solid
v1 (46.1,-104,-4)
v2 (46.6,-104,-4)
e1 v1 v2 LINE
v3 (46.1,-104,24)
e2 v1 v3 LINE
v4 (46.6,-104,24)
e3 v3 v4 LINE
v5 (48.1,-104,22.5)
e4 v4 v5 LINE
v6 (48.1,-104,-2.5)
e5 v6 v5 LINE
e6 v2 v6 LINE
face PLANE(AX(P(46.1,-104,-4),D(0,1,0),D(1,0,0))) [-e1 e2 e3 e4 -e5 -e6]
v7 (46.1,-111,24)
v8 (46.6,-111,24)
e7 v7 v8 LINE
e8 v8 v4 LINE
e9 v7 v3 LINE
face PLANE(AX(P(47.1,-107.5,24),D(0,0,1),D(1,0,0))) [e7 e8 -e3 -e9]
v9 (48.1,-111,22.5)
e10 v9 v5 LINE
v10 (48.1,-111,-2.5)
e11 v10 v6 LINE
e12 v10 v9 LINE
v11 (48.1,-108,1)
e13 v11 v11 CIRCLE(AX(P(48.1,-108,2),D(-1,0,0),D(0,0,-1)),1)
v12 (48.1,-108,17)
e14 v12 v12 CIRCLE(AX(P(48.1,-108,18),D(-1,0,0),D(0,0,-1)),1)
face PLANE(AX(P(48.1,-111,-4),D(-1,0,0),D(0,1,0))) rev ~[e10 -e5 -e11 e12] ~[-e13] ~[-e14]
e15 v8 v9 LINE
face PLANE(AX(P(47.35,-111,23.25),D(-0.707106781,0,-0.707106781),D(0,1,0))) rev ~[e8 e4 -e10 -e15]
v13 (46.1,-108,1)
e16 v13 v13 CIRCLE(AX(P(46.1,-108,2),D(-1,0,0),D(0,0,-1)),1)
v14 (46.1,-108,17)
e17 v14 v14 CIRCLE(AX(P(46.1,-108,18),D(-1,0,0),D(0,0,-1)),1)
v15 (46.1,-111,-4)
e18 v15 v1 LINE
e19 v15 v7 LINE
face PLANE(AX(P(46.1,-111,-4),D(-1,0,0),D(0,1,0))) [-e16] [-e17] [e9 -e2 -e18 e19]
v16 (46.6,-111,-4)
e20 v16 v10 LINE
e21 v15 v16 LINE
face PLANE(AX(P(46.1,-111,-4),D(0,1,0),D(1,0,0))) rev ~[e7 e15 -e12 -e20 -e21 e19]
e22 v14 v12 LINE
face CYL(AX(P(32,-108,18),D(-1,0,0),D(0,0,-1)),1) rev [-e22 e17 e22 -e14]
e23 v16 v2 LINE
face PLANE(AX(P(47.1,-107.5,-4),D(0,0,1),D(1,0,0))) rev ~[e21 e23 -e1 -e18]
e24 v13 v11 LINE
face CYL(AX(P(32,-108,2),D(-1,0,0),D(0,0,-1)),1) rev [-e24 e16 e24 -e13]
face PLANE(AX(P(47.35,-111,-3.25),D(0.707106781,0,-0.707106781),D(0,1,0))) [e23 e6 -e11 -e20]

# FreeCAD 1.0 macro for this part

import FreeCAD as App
import Part
import Sketcher
from FreeCAD import Vector


def edges_at(feature, points):
    """Names of the edges that pass closest to the given points."""
    edges = feature.Shape.Edges
    near = lambda p: min(range(len(edges)), key=lambda i: edges[i].distToShape(Part.Vertex(*p))[0])
    return sorted({f"Edge{near(p) + 1}" for p in points})

doc = App.newDocument("Part")
params = doc.addObject("Spreadsheet::Sheet", "Params")
for row, (alias, value) in enumerate([
    ("sketch1_diameter", "2 mm"),
    ("pad1_length", "20 mm"),
    ("sketch2_diameter", "2 mm"),
    ("pad2_length", "20 mm"),
    ("sketch3_width", "2 mm"),
    ("sketch3_height", "7 mm"),
    ("pad3_length", "28 mm"),
    ("chamfer_size", "1.5 mm"),
], start=1):
    params.set(f"A{row}", alias)
    params.set(f"B{row}", "=" + value)
    params.setAlias(f"B{row}", alias)

body = doc.addObject("PartDesign::Body", "Body")

# Sketch on YZ plane
sketch1 = body.newObject("Sketcher::SketchObject", "Sketch")
sketch1.AttachmentSupport = (doc.getObject("YZ_Plane"), [""])
sketch1.MapMode = "FlatFace"
sketch1.AttachmentOffset = App.Placement(Vector(0, 0, 32), App.Rotation())
sketch1.addGeometry(Part.Circle(Vector(-108, 18, 0), Vector(0, 0, 1), 1), False)
sketch1.addConstraint([
    Sketcher.Constraint("Diameter", 0, 2.0),
    Sketcher.Constraint("DistanceX", 0, 3, -1, 1, 108.0),
    Sketcher.Constraint("DistanceY", -1, 1, 0, 3, 18.0),
])
sketch1.setExpression("Constraints[0]", "Params.sketch1_diameter")
pad1 = body.newObject("PartDesign::Pad", "Pad")
pad1.Profile = sketch1
pad1.setExpression("Length", "Params.pad1_length")
body2 = doc.addObject("PartDesign::Body", "Body001")
body2.AllowCompound = True

# Sketch on YZ plane
sketch2 = body2.newObject("Sketcher::SketchObject", "Sketch001")
sketch2.AttachmentSupport = (doc.getObject("YZ_Plane001"), [""])
sketch2.MapMode = "FlatFace"
sketch2.AttachmentOffset = App.Placement(Vector(0, 0, 32), App.Rotation())
sketch2.addGeometry(Part.Circle(Vector(-108, 2, 0), Vector(0, 0, 1), 1), False)
sketch2.addConstraint([
    Sketcher.Constraint("Diameter", 0, 2.0),
    Sketcher.Constraint("DistanceX", 0, 3, -1, 1, 108.0),
    Sketcher.Constraint("DistanceY", -1, 1, 0, 3, 2.0),
])
sketch2.setExpression("Constraints[0]", "Params.sketch2_diameter")
pad2 = body2.newObject("PartDesign::Pad", "Pad001")
pad2.Profile = sketch2
pad2.setExpression("Length", "Params.pad2_length")
doc.recompute()

boolean = body2.newObject("PartDesign::Boolean", "Boolean")
boolean.Type = "Fuse"
boolean.addObjects([body])
body3 = doc.addObject("PartDesign::Body", "Body002")

# Sketch on XY plane
sketch3 = body3.newObject("Sketcher::SketchObject", "Sketch002")
sketch3.AttachmentSupport = (doc.getObject("XY_Plane002"), [""])
sketch3.MapMode = "FlatFace"
sketch3.AttachmentOffset = App.Placement(Vector(0, 0, -4), App.Rotation())
sketch3.addGeometry([
    Part.LineSegment(Vector(46.1, -104, 0), Vector(46.1, -111, 0)),
    Part.LineSegment(Vector(46.1, -111, 0), Vector(48.1, -111, 0)),
    Part.LineSegment(Vector(48.1, -111, 0), Vector(48.1, -104, 0)),
    Part.LineSegment(Vector(48.1, -104, 0), Vector(46.1, -104, 0)),
], False)
sketch3.addConstraint([
    Sketcher.Constraint("Coincident", 0, 2, 1, 1),
    Sketcher.Constraint("Coincident", 1, 2, 2, 1),
    Sketcher.Constraint("Coincident", 2, 2, 3, 1),
    Sketcher.Constraint("Coincident", 3, 2, 0, 1),
    Sketcher.Constraint("Vertical", 0),
    Sketcher.Constraint("Horizontal", 1),
    Sketcher.Constraint("Vertical", 2),
    Sketcher.Constraint("Horizontal", 3),
    Sketcher.Constraint("DistanceX", 1, 1, 1, 2, 2.0),
    Sketcher.Constraint("DistanceY", 0, 2, 0, 1, 7.0),
    Sketcher.Constraint("DistanceY", 0, 2, -1, 1, 111.0),
    Sketcher.Constraint("DistanceX", -1, 1, 0, 2, 46.1),
])
sketch3.setExpression("Constraints[8]", "Params.sketch3_width")
sketch3.setExpression("Constraints[9]", "Params.sketch3_height")
pad3 = body3.newObject("PartDesign::Pad", "Pad002")
pad3.Profile = sketch3
pad3.setExpression("Length", "Params.pad3_length")
doc.recompute()

boolean2 = body3.newObject("PartDesign::Boolean", "Boolean001")
boolean2.Type = "Cut"
boolean2.addObjects([body2])
doc.recompute()

chamfer = body3.newObject("PartDesign::Chamfer", "Chamfer")
chamfer.Base = (boolean2, edges_at(boolean2, [(48.1, -107.5, 24), (48.1, -107.5, -4)]))
chamfer.setExpression("Size", "Params.chamfer_size")

doc.recompute()
